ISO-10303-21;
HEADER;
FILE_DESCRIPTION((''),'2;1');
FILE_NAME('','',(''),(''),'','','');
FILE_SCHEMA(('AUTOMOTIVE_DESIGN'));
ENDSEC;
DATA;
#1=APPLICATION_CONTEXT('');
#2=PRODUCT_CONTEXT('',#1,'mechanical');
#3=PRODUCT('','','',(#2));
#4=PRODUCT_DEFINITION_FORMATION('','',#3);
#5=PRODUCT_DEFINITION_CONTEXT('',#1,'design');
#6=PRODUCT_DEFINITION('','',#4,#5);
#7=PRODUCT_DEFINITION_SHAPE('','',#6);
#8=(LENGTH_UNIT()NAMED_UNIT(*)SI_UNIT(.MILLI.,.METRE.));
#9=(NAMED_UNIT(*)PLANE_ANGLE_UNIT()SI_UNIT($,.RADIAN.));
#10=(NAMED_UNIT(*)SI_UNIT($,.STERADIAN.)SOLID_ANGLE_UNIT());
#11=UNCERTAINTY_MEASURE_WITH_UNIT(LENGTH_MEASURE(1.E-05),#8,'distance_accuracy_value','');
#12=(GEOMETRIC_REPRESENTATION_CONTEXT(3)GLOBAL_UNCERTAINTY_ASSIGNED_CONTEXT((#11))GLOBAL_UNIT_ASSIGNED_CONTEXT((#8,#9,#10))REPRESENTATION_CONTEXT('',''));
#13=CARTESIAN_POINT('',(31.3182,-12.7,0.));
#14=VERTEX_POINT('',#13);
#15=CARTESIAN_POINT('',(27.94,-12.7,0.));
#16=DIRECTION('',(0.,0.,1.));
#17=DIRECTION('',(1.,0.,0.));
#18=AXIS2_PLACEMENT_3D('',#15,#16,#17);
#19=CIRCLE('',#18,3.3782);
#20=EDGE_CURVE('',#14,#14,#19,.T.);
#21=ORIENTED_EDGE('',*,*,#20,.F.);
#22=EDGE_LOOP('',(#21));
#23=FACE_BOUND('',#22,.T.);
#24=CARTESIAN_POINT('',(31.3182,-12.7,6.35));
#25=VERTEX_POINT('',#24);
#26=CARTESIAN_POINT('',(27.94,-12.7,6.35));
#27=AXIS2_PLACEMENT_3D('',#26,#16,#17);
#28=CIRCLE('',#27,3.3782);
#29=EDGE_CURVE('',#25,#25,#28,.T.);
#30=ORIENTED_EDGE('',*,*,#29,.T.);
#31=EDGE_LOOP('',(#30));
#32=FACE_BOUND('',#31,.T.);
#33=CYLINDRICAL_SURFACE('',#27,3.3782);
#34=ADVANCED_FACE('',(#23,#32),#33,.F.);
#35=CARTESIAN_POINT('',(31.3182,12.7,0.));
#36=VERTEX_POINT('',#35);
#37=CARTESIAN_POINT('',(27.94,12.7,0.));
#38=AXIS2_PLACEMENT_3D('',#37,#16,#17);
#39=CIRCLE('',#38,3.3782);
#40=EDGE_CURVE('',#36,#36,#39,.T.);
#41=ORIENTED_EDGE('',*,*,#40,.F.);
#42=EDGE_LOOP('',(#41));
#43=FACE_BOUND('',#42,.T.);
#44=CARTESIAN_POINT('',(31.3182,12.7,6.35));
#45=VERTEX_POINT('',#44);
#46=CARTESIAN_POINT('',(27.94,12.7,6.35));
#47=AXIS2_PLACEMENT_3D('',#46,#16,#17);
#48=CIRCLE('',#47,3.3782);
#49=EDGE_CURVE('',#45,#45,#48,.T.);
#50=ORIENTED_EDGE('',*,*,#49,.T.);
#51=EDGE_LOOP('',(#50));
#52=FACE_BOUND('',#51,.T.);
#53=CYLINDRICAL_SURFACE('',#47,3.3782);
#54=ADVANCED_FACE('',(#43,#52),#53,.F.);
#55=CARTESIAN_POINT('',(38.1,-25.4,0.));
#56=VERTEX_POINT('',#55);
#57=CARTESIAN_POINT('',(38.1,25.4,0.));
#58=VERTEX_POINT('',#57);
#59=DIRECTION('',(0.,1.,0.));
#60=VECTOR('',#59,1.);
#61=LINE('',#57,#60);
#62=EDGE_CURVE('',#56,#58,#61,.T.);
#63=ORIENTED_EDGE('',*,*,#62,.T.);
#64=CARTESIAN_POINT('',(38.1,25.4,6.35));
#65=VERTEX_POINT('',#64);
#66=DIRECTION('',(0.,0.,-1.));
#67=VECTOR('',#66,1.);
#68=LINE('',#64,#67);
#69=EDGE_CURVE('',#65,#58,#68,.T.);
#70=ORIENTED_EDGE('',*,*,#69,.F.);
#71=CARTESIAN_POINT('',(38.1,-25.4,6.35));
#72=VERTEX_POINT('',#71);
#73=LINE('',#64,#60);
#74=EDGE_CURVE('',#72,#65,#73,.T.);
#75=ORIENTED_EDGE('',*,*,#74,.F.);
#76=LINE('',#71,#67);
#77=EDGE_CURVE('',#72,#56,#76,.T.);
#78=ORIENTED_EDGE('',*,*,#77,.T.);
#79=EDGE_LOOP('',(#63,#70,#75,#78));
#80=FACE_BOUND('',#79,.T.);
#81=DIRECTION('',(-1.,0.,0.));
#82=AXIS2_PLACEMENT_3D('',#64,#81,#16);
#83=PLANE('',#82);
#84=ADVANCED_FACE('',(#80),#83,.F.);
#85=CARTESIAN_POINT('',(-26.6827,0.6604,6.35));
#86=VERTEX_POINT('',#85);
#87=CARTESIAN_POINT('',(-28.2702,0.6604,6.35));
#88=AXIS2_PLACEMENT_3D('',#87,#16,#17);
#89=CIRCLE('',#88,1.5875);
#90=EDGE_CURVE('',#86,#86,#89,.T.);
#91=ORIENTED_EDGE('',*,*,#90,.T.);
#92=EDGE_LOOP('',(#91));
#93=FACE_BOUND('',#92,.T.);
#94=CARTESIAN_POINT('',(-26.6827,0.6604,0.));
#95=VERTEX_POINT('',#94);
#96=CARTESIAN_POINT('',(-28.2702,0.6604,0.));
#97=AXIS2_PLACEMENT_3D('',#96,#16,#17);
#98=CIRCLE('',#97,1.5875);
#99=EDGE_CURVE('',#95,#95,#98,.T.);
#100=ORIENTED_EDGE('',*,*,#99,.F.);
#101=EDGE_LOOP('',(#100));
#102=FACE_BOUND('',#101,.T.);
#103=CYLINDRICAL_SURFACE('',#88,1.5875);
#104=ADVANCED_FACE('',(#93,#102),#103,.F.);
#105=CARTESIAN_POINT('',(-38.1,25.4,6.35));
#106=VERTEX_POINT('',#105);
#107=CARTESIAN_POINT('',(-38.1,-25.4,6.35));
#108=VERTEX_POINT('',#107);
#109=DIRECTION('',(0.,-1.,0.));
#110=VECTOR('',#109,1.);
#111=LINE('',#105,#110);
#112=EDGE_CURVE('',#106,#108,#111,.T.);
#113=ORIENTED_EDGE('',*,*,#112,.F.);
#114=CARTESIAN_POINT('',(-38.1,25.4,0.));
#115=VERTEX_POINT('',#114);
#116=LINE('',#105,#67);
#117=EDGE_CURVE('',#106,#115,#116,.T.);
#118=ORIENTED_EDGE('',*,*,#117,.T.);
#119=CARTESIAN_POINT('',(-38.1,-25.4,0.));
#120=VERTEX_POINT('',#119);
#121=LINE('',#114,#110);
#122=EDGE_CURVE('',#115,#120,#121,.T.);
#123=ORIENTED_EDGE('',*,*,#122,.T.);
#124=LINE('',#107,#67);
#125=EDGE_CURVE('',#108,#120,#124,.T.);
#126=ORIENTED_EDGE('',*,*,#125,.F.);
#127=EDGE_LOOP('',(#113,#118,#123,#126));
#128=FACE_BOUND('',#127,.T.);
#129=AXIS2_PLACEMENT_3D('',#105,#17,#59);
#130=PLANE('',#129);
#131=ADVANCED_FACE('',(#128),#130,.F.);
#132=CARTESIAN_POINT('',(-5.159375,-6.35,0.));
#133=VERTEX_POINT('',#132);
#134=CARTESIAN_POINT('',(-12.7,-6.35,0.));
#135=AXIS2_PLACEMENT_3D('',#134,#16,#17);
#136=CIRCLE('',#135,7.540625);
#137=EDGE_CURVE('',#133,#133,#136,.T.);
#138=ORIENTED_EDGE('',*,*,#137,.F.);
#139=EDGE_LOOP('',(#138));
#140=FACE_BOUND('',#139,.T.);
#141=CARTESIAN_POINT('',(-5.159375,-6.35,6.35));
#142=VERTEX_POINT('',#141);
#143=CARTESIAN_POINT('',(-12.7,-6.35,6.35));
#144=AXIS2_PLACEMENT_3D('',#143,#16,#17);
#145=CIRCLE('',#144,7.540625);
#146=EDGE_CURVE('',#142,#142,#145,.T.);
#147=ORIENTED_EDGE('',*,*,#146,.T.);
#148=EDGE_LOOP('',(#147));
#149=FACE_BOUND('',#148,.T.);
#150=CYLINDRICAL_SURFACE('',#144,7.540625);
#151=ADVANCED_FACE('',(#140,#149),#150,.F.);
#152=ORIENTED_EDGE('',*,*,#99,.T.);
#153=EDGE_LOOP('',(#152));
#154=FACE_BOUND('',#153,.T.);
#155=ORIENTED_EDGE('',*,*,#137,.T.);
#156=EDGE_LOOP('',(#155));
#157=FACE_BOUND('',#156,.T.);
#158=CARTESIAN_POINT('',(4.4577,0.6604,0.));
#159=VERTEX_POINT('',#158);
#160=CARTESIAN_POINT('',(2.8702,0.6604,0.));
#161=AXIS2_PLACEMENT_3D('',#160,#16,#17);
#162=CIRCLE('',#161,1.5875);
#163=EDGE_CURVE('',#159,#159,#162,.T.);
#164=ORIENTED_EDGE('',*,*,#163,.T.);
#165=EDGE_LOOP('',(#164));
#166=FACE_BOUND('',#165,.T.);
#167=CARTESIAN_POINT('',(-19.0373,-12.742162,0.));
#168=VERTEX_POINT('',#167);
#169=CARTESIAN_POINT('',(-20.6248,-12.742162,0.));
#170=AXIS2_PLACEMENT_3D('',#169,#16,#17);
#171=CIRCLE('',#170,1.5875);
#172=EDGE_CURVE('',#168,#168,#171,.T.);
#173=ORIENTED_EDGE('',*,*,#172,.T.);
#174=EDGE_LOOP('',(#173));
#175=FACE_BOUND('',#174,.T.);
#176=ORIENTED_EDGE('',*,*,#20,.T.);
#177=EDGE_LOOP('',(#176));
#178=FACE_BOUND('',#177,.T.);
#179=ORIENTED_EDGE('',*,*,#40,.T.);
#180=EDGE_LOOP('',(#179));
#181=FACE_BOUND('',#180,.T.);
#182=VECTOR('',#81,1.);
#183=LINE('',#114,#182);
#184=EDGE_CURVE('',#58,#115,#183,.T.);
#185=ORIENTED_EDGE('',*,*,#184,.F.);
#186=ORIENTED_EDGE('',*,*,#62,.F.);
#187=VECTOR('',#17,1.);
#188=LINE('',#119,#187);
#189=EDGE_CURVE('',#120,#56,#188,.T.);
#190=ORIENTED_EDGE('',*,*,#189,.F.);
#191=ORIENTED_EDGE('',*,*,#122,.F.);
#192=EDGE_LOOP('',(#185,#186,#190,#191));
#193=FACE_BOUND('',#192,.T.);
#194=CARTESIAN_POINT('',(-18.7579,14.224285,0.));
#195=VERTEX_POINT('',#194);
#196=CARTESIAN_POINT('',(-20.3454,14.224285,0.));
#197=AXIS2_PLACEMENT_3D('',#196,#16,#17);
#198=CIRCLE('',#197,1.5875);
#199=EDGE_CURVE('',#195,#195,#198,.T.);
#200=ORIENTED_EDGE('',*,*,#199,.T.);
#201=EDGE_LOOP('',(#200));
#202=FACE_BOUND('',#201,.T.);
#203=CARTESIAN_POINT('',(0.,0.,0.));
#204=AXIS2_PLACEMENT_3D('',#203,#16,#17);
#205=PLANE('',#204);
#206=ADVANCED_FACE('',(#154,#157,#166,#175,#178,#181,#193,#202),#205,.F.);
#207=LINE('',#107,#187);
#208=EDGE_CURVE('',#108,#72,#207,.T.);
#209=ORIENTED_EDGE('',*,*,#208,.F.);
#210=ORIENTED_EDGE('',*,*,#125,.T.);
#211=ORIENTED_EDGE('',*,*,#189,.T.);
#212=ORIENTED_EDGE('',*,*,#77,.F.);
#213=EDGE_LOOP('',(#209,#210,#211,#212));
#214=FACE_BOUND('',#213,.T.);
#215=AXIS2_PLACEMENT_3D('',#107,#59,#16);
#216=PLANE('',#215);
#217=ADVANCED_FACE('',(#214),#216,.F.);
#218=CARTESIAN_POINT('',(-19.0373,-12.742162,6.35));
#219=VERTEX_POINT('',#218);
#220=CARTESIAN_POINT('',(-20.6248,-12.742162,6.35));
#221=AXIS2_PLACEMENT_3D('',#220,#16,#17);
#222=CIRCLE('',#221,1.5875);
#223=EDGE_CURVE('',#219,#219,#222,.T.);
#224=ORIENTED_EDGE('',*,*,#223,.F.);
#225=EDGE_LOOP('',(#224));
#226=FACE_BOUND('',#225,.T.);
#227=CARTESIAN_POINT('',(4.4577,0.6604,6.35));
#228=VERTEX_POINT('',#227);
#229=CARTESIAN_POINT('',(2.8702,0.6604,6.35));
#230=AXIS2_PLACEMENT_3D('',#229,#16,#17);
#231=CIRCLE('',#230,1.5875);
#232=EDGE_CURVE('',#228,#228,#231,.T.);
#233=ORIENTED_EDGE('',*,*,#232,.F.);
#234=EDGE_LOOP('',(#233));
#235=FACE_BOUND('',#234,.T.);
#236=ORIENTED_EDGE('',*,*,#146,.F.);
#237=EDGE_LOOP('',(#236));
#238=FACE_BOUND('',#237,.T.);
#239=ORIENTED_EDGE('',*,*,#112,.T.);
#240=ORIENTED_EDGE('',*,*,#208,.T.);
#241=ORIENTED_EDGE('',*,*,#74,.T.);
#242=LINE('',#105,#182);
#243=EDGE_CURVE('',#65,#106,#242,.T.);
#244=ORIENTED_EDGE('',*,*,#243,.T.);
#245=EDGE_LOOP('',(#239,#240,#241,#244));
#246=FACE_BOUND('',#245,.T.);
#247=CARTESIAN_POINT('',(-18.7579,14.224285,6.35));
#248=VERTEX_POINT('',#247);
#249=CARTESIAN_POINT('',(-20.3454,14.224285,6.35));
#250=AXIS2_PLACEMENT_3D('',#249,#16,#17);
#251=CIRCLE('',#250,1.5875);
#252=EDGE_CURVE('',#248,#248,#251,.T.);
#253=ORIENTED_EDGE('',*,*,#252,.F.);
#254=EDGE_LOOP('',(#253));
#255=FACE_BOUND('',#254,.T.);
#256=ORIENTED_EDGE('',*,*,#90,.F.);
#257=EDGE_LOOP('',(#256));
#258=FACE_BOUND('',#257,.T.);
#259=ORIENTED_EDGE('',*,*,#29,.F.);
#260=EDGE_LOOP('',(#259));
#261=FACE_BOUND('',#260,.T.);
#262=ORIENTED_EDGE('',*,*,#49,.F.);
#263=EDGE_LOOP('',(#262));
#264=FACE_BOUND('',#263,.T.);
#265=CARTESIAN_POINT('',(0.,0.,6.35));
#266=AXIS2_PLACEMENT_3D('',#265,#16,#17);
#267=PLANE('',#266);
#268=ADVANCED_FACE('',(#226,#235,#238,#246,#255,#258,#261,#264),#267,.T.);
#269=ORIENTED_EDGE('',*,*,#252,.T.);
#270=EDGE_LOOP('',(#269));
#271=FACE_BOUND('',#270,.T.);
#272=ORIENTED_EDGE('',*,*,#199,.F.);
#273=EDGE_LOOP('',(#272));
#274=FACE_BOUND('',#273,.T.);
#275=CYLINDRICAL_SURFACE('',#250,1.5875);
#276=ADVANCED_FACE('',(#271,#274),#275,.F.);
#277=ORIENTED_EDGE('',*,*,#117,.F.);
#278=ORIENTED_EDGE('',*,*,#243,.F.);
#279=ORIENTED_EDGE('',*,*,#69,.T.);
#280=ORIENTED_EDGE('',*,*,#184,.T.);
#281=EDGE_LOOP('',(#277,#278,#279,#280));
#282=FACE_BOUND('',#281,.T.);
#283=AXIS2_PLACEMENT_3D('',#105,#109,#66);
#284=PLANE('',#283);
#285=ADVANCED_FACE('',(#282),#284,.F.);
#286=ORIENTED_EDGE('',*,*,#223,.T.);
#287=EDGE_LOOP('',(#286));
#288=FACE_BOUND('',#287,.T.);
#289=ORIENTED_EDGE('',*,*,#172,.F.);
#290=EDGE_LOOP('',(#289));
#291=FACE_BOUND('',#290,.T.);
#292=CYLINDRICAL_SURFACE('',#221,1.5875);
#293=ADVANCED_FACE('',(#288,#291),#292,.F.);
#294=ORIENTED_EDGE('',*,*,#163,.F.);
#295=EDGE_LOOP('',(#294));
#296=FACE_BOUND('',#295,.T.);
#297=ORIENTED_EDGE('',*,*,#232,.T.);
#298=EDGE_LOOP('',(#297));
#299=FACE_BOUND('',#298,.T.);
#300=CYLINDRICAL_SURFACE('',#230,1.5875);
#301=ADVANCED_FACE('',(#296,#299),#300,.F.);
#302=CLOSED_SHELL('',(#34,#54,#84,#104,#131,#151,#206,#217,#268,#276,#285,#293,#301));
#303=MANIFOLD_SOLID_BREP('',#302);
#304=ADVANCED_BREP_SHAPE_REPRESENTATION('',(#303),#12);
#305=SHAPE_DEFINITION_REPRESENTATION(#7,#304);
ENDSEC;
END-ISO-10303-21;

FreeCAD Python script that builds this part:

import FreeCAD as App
import Part
import Sketcher
Q = App.Units.Quantity

doc = App.newDocument("Part")
body = doc.addObject("PartDesign::Body", "Body")

# Sketch on XY plane
sketch1 = body.newObject("Sketcher::SketchObject", "Sketch")
sketch1.AttachmentSupport = (doc.getObject("XY_Plane"), [""])
sketch1.MapMode = "FlatFace"
sketch1.addGeometry(Part.LineSegment(App.Vector(-38, 25, 0), App.Vector(-38, -25, 0)), False)
sketch1.addGeometry(Part.LineSegment(App.Vector(-38, -25, 0), App.Vector(38, -25, 0)), False)
sketch1.addGeometry(Part.LineSegment(App.Vector(38, -25, 0), App.Vector(38, 25, 0)), False)
sketch1.addGeometry(Part.LineSegment(App.Vector(38, 25, 0), App.Vector(-38, 25, 0)), False)
sketch1.addConstraint(Sketcher.Constraint("Coincident", 0, 2, 1, 1))
sketch1.addConstraint(Sketcher.Constraint("Coincident", 1, 2, 2, 1))
sketch1.addConstraint(Sketcher.Constraint("Coincident", 2, 2, 3, 1))
sketch1.addConstraint(Sketcher.Constraint("Coincident", 3, 2, 0, 1))
sketch1.addConstraint(Sketcher.Constraint("Vertical", 0))
sketch1.addConstraint(Sketcher.Constraint("Horizontal", 1))
sketch1.addConstraint(Sketcher.Constraint("Vertical", 2))
sketch1.addConstraint(Sketcher.Constraint("Horizontal", 3))
sketch1.addConstraint(Sketcher.Constraint("Symmetric", 0, 2, 2, 2, -1, 1))
sketch1.addConstraint(Sketcher.Constraint("DistanceX", 1, 1, 1, 2, Q("3 in")))
sketch1.addConstraint(Sketcher.Constraint("DistanceY", 0, 2, 0, 1, Q("2 in")))
pad1 = body.newObject("PartDesign::Pad", "Pad")
pad1.Profile = sketch1
pad1.Length = Q("0.25 in")

# Sketch on XY plane
sketch2 = body.newObject("Sketcher::SketchObject", "Sketch001")
sketch2.AttachmentSupport = (doc.getObject("XY_Plane"), [""])
sketch2.MapMode = "FlatFace"
sketch2.AttachmentOffset = App.Placement(App.Vector(0, 0, 0.25 * 25.4), App.Rotation())
sketch2.addGeometry(Part.Circle(App.Vector(-13, -6, 0), App.Vector(0, 0, 1), 8), False)
sketch2.addConstraint(Sketcher.Constraint("Diameter", 0, Q("0.59375 in")))
sketch2.addConstraint(Sketcher.Constraint("DistanceX", 0, 3, -1, 1, Q("0.5 in")))
sketch2.addConstraint(Sketcher.Constraint("DistanceY", 0, 3, -1, 1, Q("0.25 in")))
doc.recompute()
hole = body.newObject("PartDesign::Hole", "Hole")
hole.Profile = sketch2
hole.ThreadType = "None"
hole.Diameter = Q("0.59375 in")
hole.DepthType = "ThroughAll"

# Sketch on XY plane
sketch3 = body.newObject("Sketcher::SketchObject", "Sketch002")
sketch3.AttachmentSupport = (doc.getObject("XY_Plane"), [""])
sketch3.MapMode = "FlatFace"
sketch3.AttachmentOffset = App.Placement(App.Vector(0, 0, 0.25 * 25.4), App.Rotation())
sketch3.addGeometry(Part.Circle(App.Vector(-20.3, 14.2, 0), App.Vector(0, 0, 1), 1.6), False)
sketch3.addGeometry(Part.Circle(App.Vector(-28.3, 0.7, 0), App.Vector(0, 0, 1), 1.6), False)
sketch3.addGeometry(Part.Circle(App.Vector(-20.6, -12.7, 0), App.Vector(0, 0, 1), 1.6), False)
sketch3.addGeometry(Part.Circle(App.Vector(2.9, 0.7, 0), App.Vector(0, 0, 1), 1.6), False)
sketch3.addConstraint(Sketcher.Constraint("Equal", 0, 1))
sketch3.addConstraint(Sketcher.Constraint("Equal", 1, 2))
sketch3.addConstraint(Sketcher.Constraint("Equal", 2, 3))
sketch3.addConstraint(Sketcher.Constraint("Horizontal", 1, 3, 3, 3))
sketch3.addConstraint(Sketcher.Constraint("Diameter", 0, Q("0.125 in")))
sketch3.addConstraint(Sketcher.Constraint("DistanceX", 0, 3, -1, 1, Q("0.801 in")))
sketch3.addConstraint(Sketcher.Constraint("DistanceX", 1, 3, -1, 1, Q("1.113 in")))
sketch3.addConstraint(Sketcher.Constraint("DistanceY", -1, 1, 1, 3, Q("0.026 in")))
sketch3.addConstraint(Sketcher.Constraint("DistanceX", 2, 3, -1, 1, Q("0.812 in")))
sketch3.addConstraint(Sketcher.Constraint("DistanceX", -1, 1, 3, 3, Q("0.113 in")))
sketch3.addConstraint(Sketcher.Constraint("DistanceY", -1, 1, 0, 3, Q("14.224285 mm")))
sketch3.addConstraint(Sketcher.Constraint("DistanceY", 2, 3, -1, 1, Q("12.742162 mm")))
doc.recompute()
hole2 = body.newObject("PartDesign::Hole", "Hole001")
hole2.Profile = sketch3
hole2.ThreadType = "None"
hole2.Diameter = Q("0.125 in")
hole2.DepthType = "ThroughAll"

# Sketch on XY plane
sketch4 = body.newObject("Sketcher::SketchObject", "Sketch003")
sketch4.AttachmentSupport = (doc.getObject("XY_Plane"), [""])
sketch4.MapMode = "FlatFace"
sketch4.AttachmentOffset = App.Placement(App.Vector(0, 0, 0.25 * 25.4), App.Rotation())
sketch4.addGeometry(Part.Circle(App.Vector(27.9, 12.7, 0), App.Vector(0, 0, 1), 3.4), False)
sketch4.addGeometry(Part.Circle(App.Vector(27.9, -12.7, 0), App.Vector(0, 0, 1), 3.4), False)
sketch4.addConstraint(Sketcher.Constraint("Equal", 0, 1))
sketch4.addConstraint(Sketcher.Constraint("Symmetric", 0, 3, 1, 3, -1))
sketch4.addConstraint(Sketcher.Constraint("Diameter", 0, Q("0.266 in")))
sketch4.addConstraint(Sketcher.Constraint("DistanceY", 1, 3, 0, 3, Q("1 in")))
sketch4.addConstraint(Sketcher.Constraint("DistanceX", -1, 1, 0, 3, Q("1.1 in")))
doc.recompute()
hole3 = body.newObject("PartDesign::Hole", "Hole002")
hole3.Profile = sketch4
hole3.ThreadType = "None"
hole3.Diameter = Q("0.266 in")
hole3.DepthType = "ThroughAll"

doc.recompute()
